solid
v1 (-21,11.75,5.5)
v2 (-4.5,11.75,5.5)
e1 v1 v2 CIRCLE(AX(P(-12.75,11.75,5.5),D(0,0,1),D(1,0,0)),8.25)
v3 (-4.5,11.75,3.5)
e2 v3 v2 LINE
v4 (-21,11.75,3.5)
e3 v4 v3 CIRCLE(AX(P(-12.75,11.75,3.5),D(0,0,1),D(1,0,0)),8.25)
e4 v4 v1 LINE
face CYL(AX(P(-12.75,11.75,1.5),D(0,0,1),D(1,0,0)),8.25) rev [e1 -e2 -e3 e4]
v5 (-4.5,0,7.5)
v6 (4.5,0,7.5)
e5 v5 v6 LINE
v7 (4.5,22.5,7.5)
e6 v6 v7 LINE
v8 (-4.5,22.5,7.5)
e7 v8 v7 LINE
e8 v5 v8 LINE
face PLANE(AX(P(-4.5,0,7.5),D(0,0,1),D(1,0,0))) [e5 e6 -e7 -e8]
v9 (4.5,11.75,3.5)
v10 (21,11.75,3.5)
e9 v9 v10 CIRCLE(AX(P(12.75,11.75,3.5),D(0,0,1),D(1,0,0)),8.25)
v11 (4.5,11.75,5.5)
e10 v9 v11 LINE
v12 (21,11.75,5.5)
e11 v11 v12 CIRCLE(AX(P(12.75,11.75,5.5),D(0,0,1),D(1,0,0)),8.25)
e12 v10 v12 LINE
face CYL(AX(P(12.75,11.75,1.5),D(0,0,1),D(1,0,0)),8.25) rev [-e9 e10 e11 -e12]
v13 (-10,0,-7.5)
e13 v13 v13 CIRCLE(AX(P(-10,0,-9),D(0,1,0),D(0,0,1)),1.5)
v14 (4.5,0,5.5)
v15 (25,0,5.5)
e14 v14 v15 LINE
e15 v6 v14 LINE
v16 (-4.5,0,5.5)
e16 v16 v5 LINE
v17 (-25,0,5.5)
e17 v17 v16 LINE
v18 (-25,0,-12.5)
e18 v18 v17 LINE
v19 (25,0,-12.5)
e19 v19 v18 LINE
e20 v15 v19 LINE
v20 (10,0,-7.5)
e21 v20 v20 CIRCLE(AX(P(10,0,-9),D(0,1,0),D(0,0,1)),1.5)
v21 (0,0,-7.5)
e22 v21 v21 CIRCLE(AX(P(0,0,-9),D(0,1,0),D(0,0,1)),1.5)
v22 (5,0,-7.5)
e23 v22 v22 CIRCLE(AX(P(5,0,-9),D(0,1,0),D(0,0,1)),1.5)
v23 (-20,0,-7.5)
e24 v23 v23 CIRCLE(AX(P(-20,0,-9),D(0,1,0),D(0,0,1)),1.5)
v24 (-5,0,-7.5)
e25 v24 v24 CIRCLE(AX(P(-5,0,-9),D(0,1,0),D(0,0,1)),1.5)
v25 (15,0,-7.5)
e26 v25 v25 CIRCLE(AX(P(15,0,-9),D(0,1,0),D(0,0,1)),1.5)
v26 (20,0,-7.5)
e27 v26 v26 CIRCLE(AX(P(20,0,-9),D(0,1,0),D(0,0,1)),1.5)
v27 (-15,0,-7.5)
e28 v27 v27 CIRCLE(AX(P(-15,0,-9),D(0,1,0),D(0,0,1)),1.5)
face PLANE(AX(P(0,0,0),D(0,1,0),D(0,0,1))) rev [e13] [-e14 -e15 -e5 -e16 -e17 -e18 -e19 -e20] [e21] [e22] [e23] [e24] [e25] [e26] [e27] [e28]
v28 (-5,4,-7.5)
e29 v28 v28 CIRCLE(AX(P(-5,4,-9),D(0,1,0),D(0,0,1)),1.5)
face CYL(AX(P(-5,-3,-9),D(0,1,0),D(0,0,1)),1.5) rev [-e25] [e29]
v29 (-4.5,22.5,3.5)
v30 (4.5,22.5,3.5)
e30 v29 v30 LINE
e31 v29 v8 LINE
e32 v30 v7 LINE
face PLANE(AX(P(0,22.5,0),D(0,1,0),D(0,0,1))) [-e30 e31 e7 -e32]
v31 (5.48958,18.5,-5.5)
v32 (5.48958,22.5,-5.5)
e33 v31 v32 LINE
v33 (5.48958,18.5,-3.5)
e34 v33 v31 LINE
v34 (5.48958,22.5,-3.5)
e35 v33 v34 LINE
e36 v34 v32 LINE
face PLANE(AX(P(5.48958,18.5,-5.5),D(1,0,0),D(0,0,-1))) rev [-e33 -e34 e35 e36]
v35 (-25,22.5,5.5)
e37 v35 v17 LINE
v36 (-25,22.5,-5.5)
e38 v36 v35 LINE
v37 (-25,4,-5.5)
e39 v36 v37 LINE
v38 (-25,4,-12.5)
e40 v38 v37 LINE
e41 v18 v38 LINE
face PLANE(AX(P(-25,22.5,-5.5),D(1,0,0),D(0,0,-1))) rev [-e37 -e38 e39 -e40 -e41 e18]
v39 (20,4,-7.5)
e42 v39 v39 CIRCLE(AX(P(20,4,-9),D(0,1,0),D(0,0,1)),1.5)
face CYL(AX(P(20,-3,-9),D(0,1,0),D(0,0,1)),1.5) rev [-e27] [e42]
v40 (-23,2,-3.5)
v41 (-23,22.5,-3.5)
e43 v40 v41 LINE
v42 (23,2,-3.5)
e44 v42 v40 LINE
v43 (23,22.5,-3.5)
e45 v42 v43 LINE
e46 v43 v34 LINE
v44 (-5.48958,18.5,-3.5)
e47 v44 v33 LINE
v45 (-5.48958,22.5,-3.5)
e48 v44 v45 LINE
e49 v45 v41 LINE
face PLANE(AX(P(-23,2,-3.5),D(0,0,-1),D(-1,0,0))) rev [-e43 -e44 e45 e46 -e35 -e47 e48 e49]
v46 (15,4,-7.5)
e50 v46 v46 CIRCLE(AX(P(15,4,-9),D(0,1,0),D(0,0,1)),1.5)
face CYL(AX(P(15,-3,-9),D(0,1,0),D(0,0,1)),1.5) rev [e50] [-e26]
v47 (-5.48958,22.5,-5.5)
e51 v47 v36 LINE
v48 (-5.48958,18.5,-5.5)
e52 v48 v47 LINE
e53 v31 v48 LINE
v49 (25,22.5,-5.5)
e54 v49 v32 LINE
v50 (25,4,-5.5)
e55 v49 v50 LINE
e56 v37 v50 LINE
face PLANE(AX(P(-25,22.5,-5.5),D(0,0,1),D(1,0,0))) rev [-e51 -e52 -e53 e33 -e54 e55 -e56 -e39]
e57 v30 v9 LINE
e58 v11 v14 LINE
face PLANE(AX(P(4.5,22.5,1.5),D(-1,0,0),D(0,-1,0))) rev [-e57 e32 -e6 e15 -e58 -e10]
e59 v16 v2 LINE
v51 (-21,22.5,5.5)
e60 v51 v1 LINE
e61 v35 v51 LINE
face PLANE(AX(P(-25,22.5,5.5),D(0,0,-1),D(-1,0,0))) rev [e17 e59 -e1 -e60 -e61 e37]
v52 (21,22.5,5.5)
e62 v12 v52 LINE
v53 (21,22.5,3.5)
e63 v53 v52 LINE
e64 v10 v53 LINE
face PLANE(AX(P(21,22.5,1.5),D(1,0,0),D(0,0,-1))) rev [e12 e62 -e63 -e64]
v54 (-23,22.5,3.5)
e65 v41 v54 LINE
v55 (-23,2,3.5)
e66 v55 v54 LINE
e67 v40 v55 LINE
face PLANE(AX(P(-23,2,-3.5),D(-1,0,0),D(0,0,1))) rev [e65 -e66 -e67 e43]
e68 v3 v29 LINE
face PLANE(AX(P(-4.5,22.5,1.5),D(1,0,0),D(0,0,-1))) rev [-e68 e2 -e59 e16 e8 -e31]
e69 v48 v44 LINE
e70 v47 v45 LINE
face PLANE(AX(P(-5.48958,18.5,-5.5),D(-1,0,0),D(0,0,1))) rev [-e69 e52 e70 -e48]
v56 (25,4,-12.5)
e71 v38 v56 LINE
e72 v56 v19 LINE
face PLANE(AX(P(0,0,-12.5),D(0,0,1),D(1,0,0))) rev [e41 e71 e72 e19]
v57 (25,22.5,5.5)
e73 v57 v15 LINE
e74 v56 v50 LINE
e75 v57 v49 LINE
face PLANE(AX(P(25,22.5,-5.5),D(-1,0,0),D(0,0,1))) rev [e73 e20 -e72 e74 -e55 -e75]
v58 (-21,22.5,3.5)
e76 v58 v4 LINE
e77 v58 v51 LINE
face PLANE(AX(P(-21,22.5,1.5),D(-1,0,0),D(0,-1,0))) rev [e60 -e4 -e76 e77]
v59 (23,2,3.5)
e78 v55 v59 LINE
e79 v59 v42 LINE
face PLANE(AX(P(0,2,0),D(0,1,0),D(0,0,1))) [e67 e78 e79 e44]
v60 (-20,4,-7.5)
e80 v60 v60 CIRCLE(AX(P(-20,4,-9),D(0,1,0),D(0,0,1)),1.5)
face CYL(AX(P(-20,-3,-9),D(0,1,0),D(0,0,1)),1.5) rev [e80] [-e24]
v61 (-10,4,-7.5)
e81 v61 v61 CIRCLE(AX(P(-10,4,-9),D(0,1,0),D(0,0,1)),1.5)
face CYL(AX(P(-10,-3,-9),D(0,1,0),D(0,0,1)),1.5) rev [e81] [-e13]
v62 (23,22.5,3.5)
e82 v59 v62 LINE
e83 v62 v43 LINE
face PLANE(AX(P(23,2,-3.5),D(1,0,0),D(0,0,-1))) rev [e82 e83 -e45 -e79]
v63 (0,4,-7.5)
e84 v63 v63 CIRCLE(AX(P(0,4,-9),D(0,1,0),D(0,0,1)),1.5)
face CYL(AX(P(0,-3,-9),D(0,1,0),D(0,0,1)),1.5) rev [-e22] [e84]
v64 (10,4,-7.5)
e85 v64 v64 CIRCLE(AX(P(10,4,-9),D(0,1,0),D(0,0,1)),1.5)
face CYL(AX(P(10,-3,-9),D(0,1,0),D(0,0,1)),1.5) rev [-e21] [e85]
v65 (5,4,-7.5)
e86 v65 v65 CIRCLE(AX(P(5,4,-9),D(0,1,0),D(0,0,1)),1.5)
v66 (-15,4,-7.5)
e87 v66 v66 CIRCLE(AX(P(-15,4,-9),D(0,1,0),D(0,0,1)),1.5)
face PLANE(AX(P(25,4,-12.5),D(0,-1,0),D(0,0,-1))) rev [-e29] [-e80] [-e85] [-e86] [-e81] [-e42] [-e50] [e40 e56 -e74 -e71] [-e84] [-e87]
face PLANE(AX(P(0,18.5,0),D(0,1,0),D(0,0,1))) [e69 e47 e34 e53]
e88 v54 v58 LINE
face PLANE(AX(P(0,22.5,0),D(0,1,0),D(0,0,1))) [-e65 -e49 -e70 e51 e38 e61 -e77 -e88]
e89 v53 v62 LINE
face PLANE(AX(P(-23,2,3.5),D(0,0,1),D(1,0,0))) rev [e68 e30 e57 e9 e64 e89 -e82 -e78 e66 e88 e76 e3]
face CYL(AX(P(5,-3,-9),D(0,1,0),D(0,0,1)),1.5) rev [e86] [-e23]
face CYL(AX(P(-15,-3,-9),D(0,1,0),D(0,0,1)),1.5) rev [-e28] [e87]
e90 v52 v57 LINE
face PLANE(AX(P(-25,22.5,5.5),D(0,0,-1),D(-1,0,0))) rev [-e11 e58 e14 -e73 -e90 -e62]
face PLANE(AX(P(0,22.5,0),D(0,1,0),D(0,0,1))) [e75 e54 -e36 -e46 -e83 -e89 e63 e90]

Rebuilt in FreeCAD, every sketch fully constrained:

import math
import FreeCAD as App
import Part
import Sketcher
Q = App.Units.Quantity

doc = App.newDocument("Part")
body = doc.addObject("PartDesign::Body", "Body")

sketch1 = body.newObject("Sketcher::SketchObject", "Sketch")
sketch1.AttachmentSupport = (doc.getObject("XZ_Plane"), [""])
sketch1.MapMode = "FlatFace"
sketch1.addGeometry([
    Part.LineSegment(App.Vector(-25, -5.5, 0), App.Vector(-25, 5.5, 0)),
    Part.LineSegment(App.Vector(-25, 5.5, 0), App.Vector(25, 5.5, 0)),
    Part.LineSegment(App.Vector(25, 5.5, 0), App.Vector(25, -5.5, 0)),
    Part.LineSegment(App.Vector(25, -5.5, 0), App.Vector(-25, -5.5, 0)),
], False)
sketch1.addConstraint([
    Sketcher.Constraint("Coincident", 0, 2, 1, 1),
    Sketcher.Constraint("Coincident", 1, 2, 2, 1),
    Sketcher.Constraint("Coincident", 2, 2, 3, 1),
    Sketcher.Constraint("Coincident", 3, 2, 0, 1),
    Sketcher.Constraint("Vertical", 0),
    Sketcher.Constraint("Horizontal", 1),
    Sketcher.Constraint("Vertical", 2),
    Sketcher.Constraint("Horizontal", 3),
    Sketcher.Constraint("Symmetric", 0, 2, 2, 2, -1, 1),
    Sketcher.Constraint("DistanceX", 1, 1, 1, 2, Q("50 mm")),
    Sketcher.Constraint("DistanceY", 0, 1, 0, 2, Q("11 mm")),
])
pad1 = body.newObject("PartDesign::Pad", "Pad")
pad1.Profile = sketch1
pad1.Length = 22.5
pad1.Reversed = True

sketch2 = body.newObject("Sketcher::SketchObject", "Sketch001")
sketch2.AttachmentSupport = (doc.getObject("XZ_Plane"), [""])
sketch2.MapMode = "FlatFace"
sketch2.AttachmentOffset = App.Placement(App.Vector(0, 0, -22.5), App.Rotation())
sketch2.addGeometry([
    Part.LineSegment(App.Vector(-23, -3.5, 0), App.Vector(-23, 3.5, 0)),
    Part.LineSegment(App.Vector(-23, 3.5, 0), App.Vector(23, 3.5, 0)),
    Part.LineSegment(App.Vector(23, 3.5, 0), App.Vector(23, -3.5, 0)),
    Part.LineSegment(App.Vector(23, -3.5, 0), App.Vector(-23, -3.5, 0)),
], False)
sketch2.addConstraint([
    Sketcher.Constraint("Coincident", 0, 2, 1, 1),
    Sketcher.Constraint("Coincident", 1, 2, 2, 1),
    Sketcher.Constraint("Coincident", 2, 2, 3, 1),
    Sketcher.Constraint("Coincident", 3, 2, 0, 1),
    Sketcher.Constraint("Vertical", 0),
    Sketcher.Constraint("Horizontal", 1),
    Sketcher.Constraint("Vertical", 2),
    Sketcher.Constraint("Horizontal", 3),
    Sketcher.Constraint("Symmetric", 0, 2, 2, 2, -1, 1),
    Sketcher.Constraint("DistanceX", 1, 1, 1, 2, Q("46 mm")),
    Sketcher.Constraint("DistanceY", 0, 1, 0, 2, Q("7 mm")),
])
pocket1 = body.newObject("PartDesign::Pocket", "Pocket")
pocket1.Profile = sketch2
pocket1.Length = 20.5
pocket1.Reversed = True

sketch3 = body.newObject("Sketcher::SketchObject", "Sketch002")
sketch3.AttachmentSupport = (doc.getObject("XZ_Plane"), [""])
sketch3.MapMode = "FlatFace"
sketch3.AttachmentOffset = App.Placement(App.Vector(0, 0, -22.5), App.Rotation())
sketch3.addGeometry([
    Part.LineSegment(App.Vector(-5.48958, -5.5, 0), App.Vector(-5.48958, -3.5, 0)),
    Part.LineSegment(App.Vector(-5.48958, -3.5, 0), App.Vector(5.48958, -3.5, 0)),
    Part.LineSegment(App.Vector(5.48958, -3.5, 0), App.Vector(5.48958, -5.5, 0)),
    Part.LineSegment(App.Vector(5.48958, -5.5, 0), App.Vector(-5.48958, -5.5, 0)),
], False)
sketch3.addConstraint([
    Sketcher.Constraint("Coincident", 0, 2, 1, 1),
    Sketcher.Constraint("Coincident", 1, 2, 2, 1),
    Sketcher.Constraint("Coincident", 2, 2, 3, 1),
    Sketcher.Constraint("Coincident", 3, 2, 0, 1),
    Sketcher.Constraint("Vertical", 0),
    Sketcher.Constraint("Horizontal", 1),
    Sketcher.Constraint("Vertical", 2),
    Sketcher.Constraint("Horizontal", 3),
    Sketcher.Constraint("DistanceY", 0, 1, 0, 2, Q("2 mm")),
    Sketcher.Constraint("DistanceY", 0, 2, -1, 1, Q("3.5 mm")),
    Sketcher.Constraint("DistanceX", 1, 1, 1, 2, Q("10.979161 mm")),
    Sketcher.Constraint("DistanceX", 0, 2, -1, 1, Q("5.48958 mm")),
])
pocket2 = body.newObject("PartDesign::Pocket", "Pocket001")
pocket2.Profile = sketch3
pocket2.Length = 4
pocket2.Reversed = True

sketch4 = body.newObject("Sketcher::SketchObject", "Sketch003")
sketch4.AttachmentSupport = (doc.getObject("XY_Plane"), [""])
sketch4.MapMode = "FlatFace"
sketch4.AttachmentOffset = App.Placement(App.Vector(0, 0, 5.5), App.Rotation())
sketch4.addGeometry([
    Part.LineSegment(App.Vector(-4.5, 22.5, 0), App.Vector(-21, 22.5, 0)),
    Part.LineSegment(App.Vector(-21, 22.5, 0), App.Vector(-21, 11.75, 0)),
    Part.ArcOfCircle(Part.Circle(App.Vector(-12.75, 11.75, 0), App.Vector(0, 0, 1), 8.25), math.radians(180), math.radians(360)),
    Part.LineSegment(App.Vector(-4.5, 11.75, 0), App.Vector(-4.5, 22.5, 0)),
    Part.LineSegment(App.Vector(21, 22.5, 0), App.Vector(4.5, 22.5, 0)),
    Part.LineSegment(App.Vector(4.5, 22.5, 0), App.Vector(4.5, 11.75, 0)),
    Part.ArcOfCircle(Part.Circle(App.Vector(12.75, 11.75, 0), App.Vector(0, 0, 1), 8.25), math.radians(180), math.radians(360)),
    Part.LineSegment(App.Vector(21, 11.75, 0), App.Vector(21, 22.5, 0)),
], False)
sketch4.addConstraint([
    Sketcher.Constraint("Coincident", 0, 2, 1, 1),
    Sketcher.Constraint("Tangent", 1, 2, 2, 1),
    Sketcher.Constraint("Tangent", 2, 2, 3, 1),
    Sketcher.Constraint("Coincident", 3, 2, 0, 1),
    Sketcher.Constraint("Coincident", 4, 2, 5, 1),
    Sketcher.Constraint("Tangent", 5, 2, 6, 1),
    Sketcher.Constraint("Tangent", 6, 2, 7, 1),
    Sketcher.Constraint("Coincident", 7, 2, 4, 1),
    Sketcher.Constraint("Horizontal", 0),
    Sketcher.Constraint("Vertical", 1),
    Sketcher.Constraint("Vertical", 3),
    Sketcher.Constraint("Horizontal", 4),
    Sketcher.Constraint("Vertical", 5),
    Sketcher.Constraint("Vertical", 7),
    Sketcher.Constraint("Equal", 2, 6),
    Sketcher.Constraint("Symmetric", 2, 3, 6, 3, -2),
    Sketcher.Constraint("Horizontal", 3, 2, 4, 2),
    Sketcher.Constraint("Radius", 2, Q("8.25 mm")),
    Sketcher.Constraint("DistanceX", 0, 2, -1, 1, Q("21 mm")),
    Sketcher.Constraint("DistanceY", 1, 2, 1, 1, Q("10.75 mm")),
    Sketcher.Constraint("DistanceY", -1, 1, 0, 2, Q("22.5 mm")),
])
pocket3 = body.newObject("PartDesign::Pocket", "Pocket002")
pocket3.Profile = sketch4
pocket3.Length = 4

sketch5 = body.newObject("Sketcher::SketchObject", "Sketch004")
sketch5.AttachmentSupport = (doc.getObject("XY_Plane"), [""])
sketch5.MapMode = "FlatFace"
sketch5.AttachmentOffset = App.Placement(App.Vector(0, 0, -5.5), App.Rotation())
sketch5.addGeometry([
    Part.LineSegment(App.Vector(25, 4, 0), App.Vector(25, 0, 0)),
    Part.LineSegment(App.Vector(25, 0, 0), App.Vector(-25, 0, 0)),
    Part.LineSegment(App.Vector(-25, 0, 0), App.Vector(-25, 4, 0)),
    Part.LineSegment(App.Vector(-25, 4, 0), App.Vector(25, 4, 0)),
], False)
sketch5.addConstraint([
    Sketcher.Constraint("Coincident", 0, 2, 1, 1),
    Sketcher.Constraint("Coincident", 1, 2, 2, 1),
    Sketcher.Constraint("Coincident", 2, 2, 3, 1),
    Sketcher.Constraint("Coincident", 3, 2, 0, 1),
    Sketcher.Constraint("Vertical", 0),
    Sketcher.Constraint("Horizontal", 1),
    Sketcher.Constraint("Vertical", 2),
    Sketcher.Constraint("Horizontal", 3),
    Sketcher.Constraint("Symmetric", 0, 2, 1, 2, -1, 1),
    Sketcher.Constraint("DistanceX", 1, 2, 1, 1, Q("50 mm")),
    Sketcher.Constraint("DistanceY", 0, 2, 0, 1, Q("4 mm")),
])
pad2 = body.newObject("PartDesign::Pad", "Pad001")
pad2.Profile = sketch5
pad2.Length = 7
pad2.Reversed = True

sketch6 = body.newObject("Sketcher::SketchObject", "Sketch005")
sketch6.AttachmentSupport = (doc.getObject("XZ_Plane"), [""])
sketch6.MapMode = "FlatFace"
sketch6.AttachmentOffset = App.Placement(App.Vector(0, 0, -4), App.Rotation())
sketch6.addGeometry([
    Part.Circle(App.Vector(10, -9, 0), App.Vector(0, 0, 1), 1.5),
    Part.Circle(App.Vector(5, -9, 0), App.Vector(0, 0, 1), 1.5),
    Part.Circle(App.Vector(20, -9, 0), App.Vector(0, 0, 1), 1.5),
    Part.Circle(App.Vector(15, -9, 0), App.Vector(0, 0, 1), 1.5),
    Part.Circle(App.Vector(0, -9, 0), App.Vector(0, 0, 1), 1.5),
    Part.Circle(App.Vector(-5, -9, 0), App.Vector(0, 0, 1), 1.5),
    Part.Circle(App.Vector(-10, -9, 0), App.Vector(0, 0, 1), 1.5),
    Part.Circle(App.Vector(-15, -9, 0), App.Vector(0, 0, 1), 1.5),
    Part.Circle(App.Vector(-20, -9, 0), App.Vector(0, 0, 1), 1.5),
], False)
sketch6.addConstraint([
    Sketcher.Constraint("Equal", 0, 1),
    Sketcher.Constraint("Equal", 1, 2),
    Sketcher.Constraint("Equal", 2, 3),
    Sketcher.Constraint("Equal", 3, 4),
    Sketcher.Constraint("Equal", 4, 5),
    Sketcher.Constraint("Equal", 5, 6),
    Sketcher.Constraint("Equal", 6, 7),
    Sketcher.Constraint("Equal", 7, 8),
    Sketcher.Constraint("Symmetric", 1, 3, 5, 3, -2),
    Sketcher.Constraint("Symmetric", 0, 3, 6, 3, -2),
    Sketcher.Constraint("Symmetric", 3, 3, 7, 3, -2),
    Sketcher.Constraint("Symmetric", 2, 3, 8, 3, -2),
    Sketcher.Constraint("PointOnObject", 4, 3, -2),
    Sketcher.Constraint("Horizontal", 0, 3, 1, 3),
    Sketcher.Constraint("Horizontal", 1, 3, 2, 3),
    Sketcher.Constraint("Horizontal", 2, 3, 3, 3),
    Sketcher.Constraint("Horizontal", 3, 3, 4, 3),
    Sketcher.Constraint("Diameter", 0, Q("3 mm")),
    Sketcher.Constraint("DistanceX", -1, 1, 0, 3, Q("10 mm")),
    Sketcher.Constraint("DistanceY", 0, 3, -1, 1, Q("9 mm")),
    Sketcher.Constraint("DistanceX", -1, 1, 1, 3, Q("5 mm")),
    Sketcher.Constraint("DistanceX", -1, 1, 2, 3, Q("20 mm")),
    Sketcher.Constraint("DistanceX", -1, 1, 3, 3, Q("15 mm")),
])
pocket4 = body.newObject("PartDesign::Pocket", "Pocket003")
pocket4.Profile = sketch6
pocket4.Length = 7
pocket4.Reversed = True

sketch7 = body.newObject("Sketcher::SketchObject", "Sketch006")
sketch7.AttachmentSupport = (doc.getObject("XZ_Plane"), [""])
sketch7.MapMode = "FlatFace"
sketch7.AttachmentOffset = App.Placement(App.Vector(0, 0, -22.5), App.Rotation())
sketch7.addGeometry([
    Part.LineSegment(App.Vector(-4.5, 3.5, 0), App.Vector(-4.5, 7.5, 0)),
    Part.LineSegment(App.Vector(-4.5, 7.5, 0), App.Vector(4.5, 7.5, 0)),
    Part.LineSegment(App.Vector(4.5, 7.5, 0), App.Vector(4.5, 3.5, 0)),
    Part.LineSegment(App.Vector(4.5, 3.5, 0), App.Vector(-4.5, 3.5, 0)),
], False)
sketch7.addConstraint([
    Sketcher.Constraint("Coincident", 0, 2, 1, 1),
    Sketcher.Constraint("Coincident", 1, 2, 2, 1),
    Sketcher.Constraint("Coincident", 2, 2, 3, 1),
    Sketcher.Constraint("Coincident", 3, 2, 0, 1),
    Sketcher.Constraint("Vertical", 0),
    Sketcher.Constraint("Horizontal", 1),
    Sketcher.Constraint("Vertical", 2),
    Sketcher.Constraint("Horizontal", 3),
    Sketcher.Constraint("DistanceX", 1, 1, 1, 2, Q("9 mm")),
    Sketcher.Constraint("DistanceY", 0, 1, 0, 2, Q("4 mm")),
    Sketcher.Constraint("DistanceX", 0, 2, -1, 1, Q("4.5 mm")),
    Sketcher.Constraint("DistanceY", -1, 1, 0, 2, Q("7.5 mm")),
])
pad3 = body.newObject("PartDesign::Pad", "Pad002")
pad3.Profile = sketch7
pad3.Length = 22.5

doc.recompute()
